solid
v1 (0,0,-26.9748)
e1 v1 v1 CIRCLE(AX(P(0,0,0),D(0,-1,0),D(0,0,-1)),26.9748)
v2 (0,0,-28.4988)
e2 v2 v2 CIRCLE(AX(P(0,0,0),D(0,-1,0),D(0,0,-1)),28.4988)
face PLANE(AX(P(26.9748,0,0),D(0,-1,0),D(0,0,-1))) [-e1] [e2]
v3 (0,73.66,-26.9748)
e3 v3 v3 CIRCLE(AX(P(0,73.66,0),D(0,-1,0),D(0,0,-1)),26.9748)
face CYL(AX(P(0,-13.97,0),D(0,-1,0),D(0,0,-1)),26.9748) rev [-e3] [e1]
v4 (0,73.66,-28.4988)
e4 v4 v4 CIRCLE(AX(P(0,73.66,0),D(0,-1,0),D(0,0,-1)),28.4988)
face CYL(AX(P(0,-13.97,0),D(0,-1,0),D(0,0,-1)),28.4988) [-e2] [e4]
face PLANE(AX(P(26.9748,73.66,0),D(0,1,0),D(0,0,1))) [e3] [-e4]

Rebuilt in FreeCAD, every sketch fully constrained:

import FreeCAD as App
import Part
import Sketcher
Q = App.Units.Quantity

doc = App.newDocument("Part")
body = doc.addObject("PartDesign::Body", "Body")

# Sketch on XY plane
sketch1 = doc.addObject("Sketcher::SketchObject", "Sketch")
body.addObject(sketch1)
sketch1.AttachmentSupport = (doc.XY_Plane, [""])
sketch1.MapMode = "FlatFace"
sketch1.addGeometry([
    Part.LineSegment(App.Vector(26.9748, 73.66, 0), App.Vector(26.9748, 0, 0)),
    Part.LineSegment(App.Vector(26.9748, 0, 0), App.Vector(28.4988, 0, 0)),
    Part.LineSegment(App.Vector(28.4988, 0, 0), App.Vector(28.4988, 73.66, 0)),
    Part.LineSegment(App.Vector(28.4988, 73.66, 0), App.Vector(26.9748, 73.66, 0)),
], False)
sketch1.addConstraint([
    Sketcher.Constraint("Coincident", 0, 2, 1, 1),
    Sketcher.Constraint("Coincident", 1, 2, 2, 1),
    Sketcher.Constraint("Coincident", 2, 2, 3, 1),
    Sketcher.Constraint("Coincident", 3, 2, 0, 1),
    Sketcher.Constraint("Vertical", 0),
    Sketcher.Constraint("Horizontal", 1),
    Sketcher.Constraint("Vertical", 2),
    Sketcher.Constraint("Horizontal", 3),
    Sketcher.Constraint("PointOnObject", 0, 2, -1),
    Sketcher.Constraint("DistanceY", 0, 2, 0, 1, Q("2.9 in")),
    Sketcher.Constraint("DistanceX", 1, 1, 1, 2, Q("0.06 in")),
    Sketcher.Constraint("DistanceX", -1, 1, 0, 2, Q("1.062 in")),
])
revolution = doc.addObject("PartDesign::Revolution", "Revolution")
body.addObject(revolution)
revolution.Profile = sketch1
revolution.ReferenceAxis = (sketch1, ["V_Axis"])
revolution.Angle = 360

doc.recompute()
